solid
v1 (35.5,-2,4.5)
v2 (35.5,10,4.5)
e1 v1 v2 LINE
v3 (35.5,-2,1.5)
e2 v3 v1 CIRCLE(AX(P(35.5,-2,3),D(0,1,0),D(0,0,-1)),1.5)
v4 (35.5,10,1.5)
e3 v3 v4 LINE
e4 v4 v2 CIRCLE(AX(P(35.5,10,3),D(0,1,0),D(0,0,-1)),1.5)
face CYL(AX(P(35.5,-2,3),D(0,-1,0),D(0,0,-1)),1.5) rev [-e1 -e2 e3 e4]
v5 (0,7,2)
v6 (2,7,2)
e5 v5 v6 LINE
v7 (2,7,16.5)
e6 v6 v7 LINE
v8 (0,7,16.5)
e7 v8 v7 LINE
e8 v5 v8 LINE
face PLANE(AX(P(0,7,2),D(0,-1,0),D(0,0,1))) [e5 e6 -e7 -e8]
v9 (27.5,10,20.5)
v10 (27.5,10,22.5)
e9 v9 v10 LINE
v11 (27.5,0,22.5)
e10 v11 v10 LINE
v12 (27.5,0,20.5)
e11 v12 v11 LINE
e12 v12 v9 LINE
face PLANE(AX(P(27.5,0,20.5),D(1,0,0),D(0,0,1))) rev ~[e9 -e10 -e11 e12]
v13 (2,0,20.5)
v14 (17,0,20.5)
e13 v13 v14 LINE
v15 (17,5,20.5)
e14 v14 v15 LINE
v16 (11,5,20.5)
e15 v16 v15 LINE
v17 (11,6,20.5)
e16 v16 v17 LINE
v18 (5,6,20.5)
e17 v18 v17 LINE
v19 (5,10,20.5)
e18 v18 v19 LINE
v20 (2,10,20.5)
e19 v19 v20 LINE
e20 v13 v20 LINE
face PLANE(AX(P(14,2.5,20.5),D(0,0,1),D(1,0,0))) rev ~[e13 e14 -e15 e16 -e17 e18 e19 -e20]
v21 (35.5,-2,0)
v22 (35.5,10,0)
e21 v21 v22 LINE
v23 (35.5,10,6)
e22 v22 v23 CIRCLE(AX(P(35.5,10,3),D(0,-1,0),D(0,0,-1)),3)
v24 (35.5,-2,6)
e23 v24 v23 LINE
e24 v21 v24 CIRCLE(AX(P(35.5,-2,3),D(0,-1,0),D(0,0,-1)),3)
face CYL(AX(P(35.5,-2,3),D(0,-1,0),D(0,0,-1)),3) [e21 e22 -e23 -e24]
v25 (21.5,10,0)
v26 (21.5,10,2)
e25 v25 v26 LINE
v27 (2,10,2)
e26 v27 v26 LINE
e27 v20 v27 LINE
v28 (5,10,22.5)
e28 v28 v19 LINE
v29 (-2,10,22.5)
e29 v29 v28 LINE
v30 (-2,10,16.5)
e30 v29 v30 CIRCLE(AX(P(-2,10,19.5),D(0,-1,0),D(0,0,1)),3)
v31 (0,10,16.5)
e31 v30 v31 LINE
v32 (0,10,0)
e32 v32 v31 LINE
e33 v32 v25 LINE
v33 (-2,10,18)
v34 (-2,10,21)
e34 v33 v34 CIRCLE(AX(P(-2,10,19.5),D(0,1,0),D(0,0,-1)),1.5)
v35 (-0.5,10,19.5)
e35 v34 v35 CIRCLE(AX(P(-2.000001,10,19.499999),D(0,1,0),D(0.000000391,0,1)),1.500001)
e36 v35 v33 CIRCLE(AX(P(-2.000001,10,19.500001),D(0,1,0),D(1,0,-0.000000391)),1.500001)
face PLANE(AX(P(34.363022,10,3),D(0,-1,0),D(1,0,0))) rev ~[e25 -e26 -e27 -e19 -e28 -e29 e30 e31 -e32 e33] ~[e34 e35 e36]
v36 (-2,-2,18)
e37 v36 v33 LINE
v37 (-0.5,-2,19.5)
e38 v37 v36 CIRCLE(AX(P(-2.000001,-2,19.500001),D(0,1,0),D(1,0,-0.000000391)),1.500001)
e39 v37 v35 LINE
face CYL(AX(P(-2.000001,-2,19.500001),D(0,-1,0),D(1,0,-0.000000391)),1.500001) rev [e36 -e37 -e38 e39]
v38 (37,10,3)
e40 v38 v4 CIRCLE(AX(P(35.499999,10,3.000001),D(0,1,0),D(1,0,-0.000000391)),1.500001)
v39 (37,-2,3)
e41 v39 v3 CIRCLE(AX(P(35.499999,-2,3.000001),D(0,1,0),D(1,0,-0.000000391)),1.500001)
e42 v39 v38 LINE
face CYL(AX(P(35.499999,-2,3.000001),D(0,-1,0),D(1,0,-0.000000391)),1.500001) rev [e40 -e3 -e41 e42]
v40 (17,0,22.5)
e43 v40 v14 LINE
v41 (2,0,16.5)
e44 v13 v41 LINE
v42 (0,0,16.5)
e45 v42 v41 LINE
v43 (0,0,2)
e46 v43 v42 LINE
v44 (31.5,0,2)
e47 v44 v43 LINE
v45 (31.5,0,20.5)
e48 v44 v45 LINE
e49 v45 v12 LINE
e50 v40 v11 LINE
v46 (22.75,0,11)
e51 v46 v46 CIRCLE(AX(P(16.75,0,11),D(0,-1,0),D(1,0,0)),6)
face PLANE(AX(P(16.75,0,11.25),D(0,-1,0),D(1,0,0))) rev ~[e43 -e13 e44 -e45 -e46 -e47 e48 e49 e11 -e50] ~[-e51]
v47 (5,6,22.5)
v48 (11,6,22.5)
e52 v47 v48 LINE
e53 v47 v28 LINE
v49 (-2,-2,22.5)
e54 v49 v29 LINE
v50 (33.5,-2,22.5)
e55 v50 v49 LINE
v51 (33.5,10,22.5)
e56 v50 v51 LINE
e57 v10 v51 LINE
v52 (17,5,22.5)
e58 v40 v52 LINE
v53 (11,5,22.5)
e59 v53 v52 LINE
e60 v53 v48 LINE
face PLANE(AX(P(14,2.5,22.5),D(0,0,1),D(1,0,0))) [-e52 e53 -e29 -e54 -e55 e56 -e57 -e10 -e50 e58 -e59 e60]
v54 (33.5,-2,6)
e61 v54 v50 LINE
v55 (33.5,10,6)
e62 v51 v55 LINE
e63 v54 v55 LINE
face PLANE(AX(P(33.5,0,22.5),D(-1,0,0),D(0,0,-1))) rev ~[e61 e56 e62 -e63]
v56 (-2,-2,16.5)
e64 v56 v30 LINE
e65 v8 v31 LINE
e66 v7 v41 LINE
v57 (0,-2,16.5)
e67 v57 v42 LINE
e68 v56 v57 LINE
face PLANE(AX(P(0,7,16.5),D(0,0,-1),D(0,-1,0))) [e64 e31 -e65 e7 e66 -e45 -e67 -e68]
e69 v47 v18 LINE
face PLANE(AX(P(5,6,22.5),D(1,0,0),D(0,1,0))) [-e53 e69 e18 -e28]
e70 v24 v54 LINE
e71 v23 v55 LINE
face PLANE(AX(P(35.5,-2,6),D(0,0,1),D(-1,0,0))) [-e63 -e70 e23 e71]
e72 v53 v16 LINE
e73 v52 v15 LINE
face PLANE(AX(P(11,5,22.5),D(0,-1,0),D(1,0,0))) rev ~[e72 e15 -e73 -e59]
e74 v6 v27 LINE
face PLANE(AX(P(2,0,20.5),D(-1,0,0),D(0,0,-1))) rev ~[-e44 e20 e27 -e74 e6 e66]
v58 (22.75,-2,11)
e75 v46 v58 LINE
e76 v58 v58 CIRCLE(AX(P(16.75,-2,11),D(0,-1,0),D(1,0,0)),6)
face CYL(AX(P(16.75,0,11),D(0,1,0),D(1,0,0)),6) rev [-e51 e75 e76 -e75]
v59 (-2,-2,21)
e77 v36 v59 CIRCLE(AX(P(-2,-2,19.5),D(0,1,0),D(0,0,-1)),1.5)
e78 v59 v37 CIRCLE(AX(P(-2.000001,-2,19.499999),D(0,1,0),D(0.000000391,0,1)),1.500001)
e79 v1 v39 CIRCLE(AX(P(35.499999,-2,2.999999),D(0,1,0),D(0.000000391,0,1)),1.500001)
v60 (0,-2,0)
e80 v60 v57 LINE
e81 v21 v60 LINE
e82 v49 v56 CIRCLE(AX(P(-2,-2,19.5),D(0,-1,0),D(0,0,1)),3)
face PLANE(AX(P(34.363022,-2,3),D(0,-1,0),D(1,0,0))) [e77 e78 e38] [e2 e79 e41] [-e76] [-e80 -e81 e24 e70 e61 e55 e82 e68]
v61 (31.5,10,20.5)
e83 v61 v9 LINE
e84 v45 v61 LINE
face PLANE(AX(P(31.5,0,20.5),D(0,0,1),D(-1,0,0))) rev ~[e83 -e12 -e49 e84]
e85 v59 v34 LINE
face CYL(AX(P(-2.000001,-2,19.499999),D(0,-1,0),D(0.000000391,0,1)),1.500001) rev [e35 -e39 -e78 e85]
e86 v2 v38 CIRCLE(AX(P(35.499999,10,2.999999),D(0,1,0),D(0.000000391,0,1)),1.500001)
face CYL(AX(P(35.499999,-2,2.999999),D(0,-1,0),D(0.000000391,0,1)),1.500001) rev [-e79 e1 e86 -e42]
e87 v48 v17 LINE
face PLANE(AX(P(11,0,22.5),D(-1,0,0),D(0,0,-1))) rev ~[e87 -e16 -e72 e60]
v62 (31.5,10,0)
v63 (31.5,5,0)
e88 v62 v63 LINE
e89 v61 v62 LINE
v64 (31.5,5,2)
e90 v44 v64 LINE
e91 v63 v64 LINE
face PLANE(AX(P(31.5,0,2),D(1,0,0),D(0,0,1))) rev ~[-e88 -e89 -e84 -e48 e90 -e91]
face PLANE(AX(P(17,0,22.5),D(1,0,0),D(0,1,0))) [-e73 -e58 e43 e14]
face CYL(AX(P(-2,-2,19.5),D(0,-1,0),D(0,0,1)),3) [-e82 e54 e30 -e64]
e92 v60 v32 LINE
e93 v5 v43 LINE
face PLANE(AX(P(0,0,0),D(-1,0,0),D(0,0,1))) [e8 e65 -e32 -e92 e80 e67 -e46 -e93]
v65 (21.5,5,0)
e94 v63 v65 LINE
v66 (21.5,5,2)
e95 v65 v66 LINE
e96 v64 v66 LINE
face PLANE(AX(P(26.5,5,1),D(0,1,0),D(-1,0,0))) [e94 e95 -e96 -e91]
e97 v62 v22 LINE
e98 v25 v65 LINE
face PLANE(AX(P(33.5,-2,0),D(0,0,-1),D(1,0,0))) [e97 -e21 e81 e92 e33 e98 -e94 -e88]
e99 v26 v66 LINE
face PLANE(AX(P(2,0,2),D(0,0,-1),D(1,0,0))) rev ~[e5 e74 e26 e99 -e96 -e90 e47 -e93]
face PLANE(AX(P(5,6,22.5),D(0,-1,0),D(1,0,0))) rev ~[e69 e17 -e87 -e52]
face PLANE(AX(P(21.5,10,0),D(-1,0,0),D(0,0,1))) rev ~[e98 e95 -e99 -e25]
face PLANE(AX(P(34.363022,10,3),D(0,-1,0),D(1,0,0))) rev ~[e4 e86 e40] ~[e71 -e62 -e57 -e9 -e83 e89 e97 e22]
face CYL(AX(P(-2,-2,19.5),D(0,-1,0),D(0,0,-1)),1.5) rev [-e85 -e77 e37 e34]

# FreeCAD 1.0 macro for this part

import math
import FreeCAD as App
import Part
import Sketcher
from FreeCAD import Vector
Q = App.Units.Quantity

doc = App.newDocument("Part")
body = doc.addObject("PartDesign::Body", "Body")

# Sketch on XZ plane
sketch1 = body.newObject("Sketcher::SketchObject", "Sketch")
sketch1.AttachmentSupport = (doc.getObject("XZ_Plane"), [""])
sketch1.MapMode = "FlatFace"
sketch1.addGeometry(Part.LineSegment(Vector(0, 22.5, 0), Vector(0, 0, 0)), False)
sketch1.addGeometry(Part.LineSegment(Vector(0, 0, 0), Vector(33.5, 0, 0)), False)
sketch1.addGeometry(Part.LineSegment(Vector(33.5, 0, 0), Vector(33.5, 22.5, 0)), False)
sketch1.addGeometry(Part.LineSegment(Vector(33.5, 22.5, 0), Vector(0, 22.5, 0)), False)
sketch1.addGeometry(Part.Circle(Vector(16.75, 11, 0), Vector(0, 0, 1), 6), False)
sketch1.addConstraint(Sketcher.Constraint("Coincident", 0, 2, 1, 1))
sketch1.addConstraint(Sketcher.Constraint("Coincident", 1, 2, 2, 1))
sketch1.addConstraint(Sketcher.Constraint("Coincident", 2, 2, 3, 1))
sketch1.addConstraint(Sketcher.Constraint("Coincident", 3, 2, 0, 1))
sketch1.addConstraint(Sketcher.Constraint("Vertical", 0))
sketch1.addConstraint(Sketcher.Constraint("Horizontal", 1))
sketch1.addConstraint(Sketcher.Constraint("Vertical", 2))
sketch1.addConstraint(Sketcher.Constraint("Horizontal", 3))
sketch1.addConstraint(Sketcher.Constraint("Coincident", 0, 2, -1, 1))
sketch1.addConstraint(Sketcher.Constraint("Diameter", 4, Q("12 mm")))
sketch1.addConstraint(Sketcher.Constraint("DistanceX", 1, 1, 1, 2, Q("33.5 mm")))
sketch1.addConstraint(Sketcher.Constraint("DistanceY", 0, 2, 0, 1, Q("22.5 mm")))
sketch1.addConstraint(Sketcher.Constraint("DistanceY", -1, 1, 4, 3, Q("11 mm")))
sketch1.addConstraint(Sketcher.Constraint("DistanceX", -1, 1, 4, 3, Q("16.75 mm")))
pad1 = body.newObject("PartDesign::Pad", "Pad")
pad1.Profile = sketch1
pad1.Length = 2

# Sketch on XZ plane
sketch2 = body.newObject("Sketcher::SketchObject", "Sketch001")
sketch2.AttachmentSupport = (doc.getObject("XZ_Plane"), [""])
sketch2.MapMode = "FlatFace"
sketch2.addGeometry(Part.LineSegment(Vector(27.5, 22.5, 0), Vector(33.5, 22.5, 0)), False)
sketch2.addGeometry(Part.LineSegment(Vector(33.5, 22.5, 0), Vector(33.5, 0, 0)), False)
sketch2.addGeometry(Part.LineSegment(Vector(33.5, 0, 0), Vector(0, 0, 0)), False)
sketch2.addGeometry(Part.LineSegment(Vector(0, 0, 0), Vector(0, 22.5, 0)), False)
sketch2.addGeometry(Part.LineSegment(Vector(0, 22.5, 0), Vector(11, 22.5, 0)), False)
sketch2.addGeometry(Part.LineSegment(Vector(11, 22.5, 0), Vector(11, 20.5, 0)), False)
sketch2.addGeometry(Part.LineSegment(Vector(11, 20.5, 0), Vector(2, 20.5, 0)), False)
sketch2.addGeometry(Part.LineSegment(Vector(2, 20.5, 0), Vector(2, 2, 0)), False)
sketch2.addGeometry(Part.LineSegment(Vector(2, 2, 0), Vector(31.5, 2, 0)), False)
sketch2.addGeometry(Part.LineSegment(Vector(31.5, 2, 0), Vector(31.5, 20.5, 0)), False)
sketch2.addGeometry(Part.LineSegment(Vector(31.5, 20.5, 0), Vector(27.5, 20.5, 0)), False)
sketch2.addGeometry(Part.LineSegment(Vector(27.5, 20.5, 0), Vector(27.5, 22.5, 0)), False)
sketch2.addConstraint(Sketcher.Constraint("Coincident", 0, 2, 1, 1))
sketch2.addConstraint(Sketcher.Constraint("Coincident", 1, 2, 2, 1))
sketch2.addConstraint(Sketcher.Constraint("Coincident", 2, 2, 3, 1))
sketch2.addConstraint(Sketcher.Constraint("Coincident", 3, 2, 4, 1))
sketch2.addConstraint(Sketcher.Constraint("Coincident", 4, 2, 5, 1))
sketch2.addConstraint(Sketcher.Constraint("Coincident", 5, 2, 6, 1))
sketch2.addConstraint(Sketcher.Constraint("Coincident", 6, 2, 7, 1))
sketch2.addConstraint(Sketcher.Constraint("Coincident", 7, 2, 8, 1))
sketch2.addConstraint(Sketcher.Constraint("Coincident", 8, 2, 9, 1))
sketch2.addConstraint(Sketcher.Constraint("Coincident", 9, 2, 10, 1))
sketch2.addConstraint(Sketcher.Constraint("Coincident", 10, 2, 11, 1))
sketch2.addConstraint(Sketcher.Constraint("Coincident", 11, 2, 0, 1))
sketch2.addConstraint(Sketcher.Constraint("Horizontal", 0))
sketch2.addConstraint(Sketcher.Constraint("Vertical", 1))
sketch2.addConstraint(Sketcher.Constraint("Horizontal", 2))
sketch2.addConstraint(Sketcher.Constraint("Vertical", 3))
sketch2.addConstraint(Sketcher.Constraint("Horizontal", 4))
sketch2.addConstraint(Sketcher.Constraint("Vertical", 5))
sketch2.addConstraint(Sketcher.Constraint("Horizontal", 6))
sketch2.addConstraint(Sketcher.Constraint("Vertical", 7))
sketch2.addConstraint(Sketcher.Constraint("Horizontal", 8))
sketch2.addConstraint(Sketcher.Constraint("Vertical", 9))
sketch2.addConstraint(Sketcher.Constraint("Horizontal", 10))
sketch2.addConstraint(Sketcher.Constraint("Vertical", 11))
sketch2.addConstraint(Sketcher.Constraint("Coincident", 2, 2, -1, 1))
sketch2.addConstraint(Sketcher.Constraint("Horizontal", 0, 2, 3, 2))
sketch2.addConstraint(Sketcher.Constraint("Horizontal", 6, 2, 9, 2))
sketch2.addConstraint(Sketcher.Constraint("DistanceX", 0, 1, 0, 2, Q("6 mm")))
sketch2.addConstraint(Sketcher.Constraint("DistanceX", 4, 1, 4, 2, Q("11 mm")))
sketch2.addConstraint(Sketcher.Constraint("DistanceX", 6, 2, 6, 1, Q("9 mm")))
sketch2.addConstraint(Sketcher.Constraint("DistanceX", 10, 2, 10, 1, Q("4 mm")))
sketch2.addConstraint(Sketcher.Constraint("DistanceY", 5, 2, 5, 1, Q("2 mm")))
sketch2.addConstraint(Sketcher.Constraint("DistanceX", 2, 2, 2, 1, Q("33.5 mm")))
sketch2.addConstraint(Sketcher.Constraint("DistanceY", 1, 2, 1, 1, Q("22.5 mm")))
sketch2.addConstraint(Sketcher.Constraint("DistanceY", 7, 2, 7, 1, Q("18.5 mm")))
pad2 = body.newObject("PartDesign::Pad", "Pad001")
pad2.Profile = sketch2
pad2.Length = 10
pad2.Reversed = True

# Sketch on XY plane
sketch3 = body.newObject("Sketcher::SketchObject", "Sketch002")
sketch3.AttachmentSupport = (doc.getObject("XY_Plane"), [""])
sketch3.MapMode = "FlatFace"
sketch3.AttachmentOffset = App.Placement(Vector(0, 0, 22.5), App.Rotation())
sketch3.addGeometry(Part.LineSegment(Vector(5, 10, 0), Vector(5, 6, 0)), False)
sketch3.addGeometry(Part.LineSegment(Vector(5, 6, 0), Vector(11, 6, 0)), False)
sketch3.addGeometry(Part.LineSegment(Vector(11, 6, 0), Vector(11, 10, 0)), False)
sketch3.addGeometry(Part.LineSegment(Vector(11, 10, 0), Vector(5, 10, 0)), False)
sketch3.addConstraint(Sketcher.Constraint("Coincident", 0, 2, 1, 1))
sketch3.addConstraint(Sketcher.Constraint("Coincident", 1, 2, 2, 1))
sketch3.addConstraint(Sketcher.Constraint("Coincident", 2, 2, 3, 1))
sketch3.addConstraint(Sketcher.Constraint("Coincident", 3, 2, 0, 1))
sketch3.addConstraint(Sketcher.Constraint("Vertical", 0))
sketch3.addConstraint(Sketcher.Constraint("Horizontal", 1))
sketch3.addConstraint(Sketcher.Constraint("Vertical", 2))
sketch3.addConstraint(Sketcher.Constraint("Horizontal", 3))
sketch3.addConstraint(Sketcher.Constraint("DistanceX", 1, 1, 1, 2, Q("6 mm")))
sketch3.addConstraint(Sketcher.Constraint("DistanceY", 0, 2, 0, 1, Q("4 mm")))
sketch3.addConstraint(Sketcher.Constraint("DistanceX", -1, 1, 0, 2, Q("5 mm")))
sketch3.addConstraint(Sketcher.Constraint("DistanceY", -1, 1, 0, 2, Q("6 mm")))
pocket1 = body.newObject("PartDesign::Pocket", "Pocket")
pocket1.Profile = sketch3
pocket1.Length = 2

# Sketch on XZ plane
sketch4 = body.newObject("Sketcher::SketchObject", "Sketch003")
sketch4.AttachmentSupport = (doc.getObject("XZ_Plane"), [""])
sketch4.MapMode = "FlatFace"
sketch4.AttachmentOffset = App.Placement(Vector(0, 0, 2), App.Rotation())
sketch4.addGeometry(Part.LineSegment(Vector(33.5, 6, 0), Vector(33.5, 0, 0)), False)
sketch4.addGeometry(Part.LineSegment(Vector(33.5, 0, 0), Vector(35.5, 0, 0)), False)
sketch4.addGeometry(Part.ArcOfCircle(Part.Circle(Vector(35.5, 3, 0), Vector(0, 0, 1), 3), math.radians(-90), math.radians(90)), False)
sketch4.addGeometry(Part.LineSegment(Vector(35.5, 6, 0), Vector(33.5, 6, 0)), False)
sketch4.addGeometry(Part.ArcOfCircle(Part.Circle(Vector(35.5, 3, 0), Vector(0, 0, 1), 1.5), math.radians(90), math.radians(270)), False)
sketch4.addGeometry(Part.ArcOfCircle(Part.Circle(Vector(35.499999, 2.999999, 0), Vector(0, 0, 1), 1.500001), math.radians(0.000022), math.radians(89.999978)), False)
sketch4.addGeometry(Part.ArcOfCircle(Part.Circle(Vector(35.499999, 3.000001, 0), Vector(0, 0, 1), 1.500001), math.radians(-89.999978), math.radians(-0.000022)), False)
sketch4.addGeometry(Part.LineSegment(Vector(0, 16.5, 0), Vector(0, 22.5, 0)), False)
sketch4.addGeometry(Part.LineSegment(Vector(0, 22.5, 0), Vector(-2, 22.5, 0)), False)
sketch4.addGeometry(Part.ArcOfCircle(Part.Circle(Vector(-2, 19.5, 0), Vector(0, 0, 1), 3), math.radians(90), math.radians(270)), False)
sketch4.addGeometry(Part.LineSegment(Vector(-2, 16.5, 0), Vector(0, 16.5, 0)), False)
sketch4.addGeometry(Part.ArcOfCircle(Part.Circle(Vector(-2.000001, 19.499999, 0), Vector(0, 0, 1), 1.500001), math.radians(0.000022), math.radians(89.999978)), False)
sketch4.addGeometry(Part.ArcOfCircle(Part.Circle(Vector(-2.000001, 19.500001, 0), Vector(0, 0, 1), 1.500001), math.radians(-89.999978), math.radians(-0.000022)), False)
sketch4.addGeometry(Part.ArcOfCircle(Part.Circle(Vector(-2, 19.5, 0), Vector(0, 0, 1), 1.5), math.radians(90), math.radians(270)), False)
sketch4.addConstraint(Sketcher.Constraint("Coincident", 0, 2, 1, 1))
sketch4.addConstraint(Sketcher.Constraint("Tangent", 1, 2, 2, 1))
sketch4.addConstraint(Sketcher.Constraint("Tangent", 2, 2, 3, 1))
sketch4.addConstraint(Sketcher.Constraint("Coincident", 3, 2, 0, 1))
sketch4.addConstraint(Sketcher.Constraint("Tangent", 4, 1, 5, 2))
sketch4.addConstraint(Sketcher.Constraint("Tangent", 5, 1, 6, 2))
sketch4.addConstraint(Sketcher.Constraint("Tangent", 6, 1, 4, 2))
sketch4.addConstraint(Sketcher.Constraint("Coincident", 7, 2, 8, 1))
sketch4.addConstraint(Sketcher.Constraint("Tangent", 8, 2, 9, 1))
sketch4.addConstraint(Sketcher.Constraint("Tangent", 9, 2, 10, 1))
sketch4.addConstraint(Sketcher.Constraint("Coincident", 10, 2, 7, 1))
sketch4.addConstraint(Sketcher.Constraint("Tangent", 11, 1, 12, 2))
sketch4.addConstraint(Sketcher.Constraint("Tangent", 12, 1, 13, 2))
sketch4.addConstraint(Sketcher.Constraint("Tangent", 13, 1, 11, 2))
sketch4.addConstraint(Sketcher.Constraint("Vertical", 0))
sketch4.addConstraint(Sketcher.Constraint("Horizontal", 1))
sketch4.addConstraint(Sketcher.Constraint("Horizontal", 3))
sketch4.addConstraint(Sketcher.Constraint("Vertical", 7))
sketch4.addConstraint(Sketcher.Constraint("Horizontal", 8))
sketch4.addConstraint(Sketcher.Constraint("Horizontal", 10))
sketch4.addConstraint(Sketcher.Constraint("Coincident", 4, 3, 2, 3))
sketch4.addConstraint(Sketcher.Constraint("Coincident", 11, 3, 9, 3))
sketch4.addConstraint(Sketcher.Constraint("Equal", 2, 9))
sketch4.addConstraint(Sketcher.Constraint("Equal", 6, 11))
sketch4.addConstraint(Sketcher.Constraint("PointOnObject", 0, 2, -1))
sketch4.addConstraint(Sketcher.Constraint("PointOnObject", 7, 2, -2))
sketch4.addConstraint(Sketcher.Constraint("Horizontal", 6, 3, 5, 1))
sketch4.addConstraint(Sketcher.Constraint("Horizontal", 13, 3, 11, 1))
sketch4.addConstraint(Sketcher.Constraint("Vertical", 2, 2, 4, 1))
sketch4.addConstraint(Sketcher.Constraint("Vertical", 4, 1, 6, 1))
sketch4.addConstraint(Sketcher.Constraint("Vertical", 9, 2, 12, 1))
sketch4.addConstraint(Sketcher.Constraint("Vertical", 12, 1, 13, 1))
sketch4.addConstraint(Sketcher.Constraint("Equal", 3, 8))
sketch4.addConstraint(Sketcher.Constraint("Radius", 2, Q("3 mm")))
sketch4.addConstraint(Sketcher.Constraint("Radius", 4, Q("1.5 mm")))
sketch4.addConstraint(Sketcher.Constraint("DistanceX", 1, 1, 1, 2, Q("2 mm")))
sketch4.addConstraint(Sketcher.Constraint("DistanceX", -1, 1, 5, 1, Q("37 mm")))
sketch4.addConstraint(Sketcher.Constraint("DistanceY", -1, 1, 12, 1, Q("18 mm")))
pad3 = body.newObject("PartDesign::Pad", "Pad002")
pad3.Profile = sketch4
pad3.Length = 12
pad3.Reversed = True

# Sketch on XY plane
sketch5 = body.newObject("Sketcher::SketchObject", "Sketch004")
sketch5.AttachmentSupport = (doc.getObject("XY_Plane"), [""])
sketch5.MapMode = "FlatFace"
sketch5.AttachmentOffset = App.Placement(Vector(0, 0, 22.5), App.Rotation())
sketch5.addGeometry(Part.LineSegment(Vector(11, 5, 0), Vector(11, 0, 0)), False)
sketch5.addGeometry(Part.LineSegment(Vector(11, 0, 0), Vector(17, 0, 0)), False)
sketch5.addGeometry(Part.LineSegment(Vector(17, 0, 0), Vector(17, 5, 0)), False)
sketch5.addGeometry(Part.LineSegment(Vector(17, 5, 0), Vector(11, 5, 0)), False)
sketch5.addConstraint(Sketcher.Constraint("Coincident", 0, 2, 1, 1))
sketch5.addConstraint(Sketcher.Constraint("Coincident", 1, 2, 2, 1))
sketch5.addConstraint(Sketcher.Constraint("Coincident", 2, 2, 3, 1))
sketch5.addConstraint(Sketcher.Constraint("Coincident", 3, 2, 0, 1))
sketch5.addConstraint(Sketcher.Constraint("Vertical", 0))
sketch5.addConstraint(Sketcher.Constraint("Horizontal", 1))
sketch5.addConstraint(Sketcher.Constraint("Vertical", 2))
sketch5.addConstraint(Sketcher.Constraint("Horizontal", 3))
sketch5.addConstraint(Sketcher.Constraint("PointOnObject", 0, 2, -1))
sketch5.addConstraint(Sketcher.Constraint("DistanceX", 1, 1, 1, 2, Q("6 mm")))
sketch5.addConstraint(Sketcher.Constraint("DistanceY", 0, 2, 0, 1, Q("5 mm")))
sketch5.addConstraint(Sketcher.Constraint("DistanceX", -1, 1, 0, 2, Q("11 mm")))
pad4 = body.newObject("PartDesign::Pad", "Pad003")
pad4.Profile = sketch5
pad4.Length = 2
pad4.Reversed = True

# Sketch on XZ plane
sketch6 = body.newObject("Sketcher::SketchObject", "Sketch005")
sketch6.AttachmentSupport = (doc.getObject("XZ_Plane"), [""])
sketch6.MapMode = "FlatFace"
sketch6.AttachmentOffset = App.Placement(Vector(0, 0, -10), App.Rotation())
sketch6.addGeometry(Part.LineSegment(Vector(31.5, 2, 0), Vector(31.5, 0, 0)), False)
sketch6.addGeometry(Part.LineSegment(Vector(31.5, 0, 0), Vector(21.5, 0, 0)), False)
sketch6.addGeometry(Part.LineSegment(Vector(21.5, 0, 0), Vector(21.5, 2, 0)), False)
sketch6.addGeometry(Part.LineSegment(Vector(21.5, 2, 0), Vector(31.5, 2, 0)), False)
sketch6.addConstraint(Sketcher.Constraint("Coincident", 0, 2, 1, 1))
sketch6.addConstraint(Sketcher.Constraint("Coincident", 1, 2, 2, 1))
sketch6.addConstraint(Sketcher.Constraint("Coincident", 2, 2, 3, 1))
sketch6.addConstraint(Sketcher.Constraint("Coincident", 3, 2, 0, 1))
sketch6.addConstraint(Sketcher.Constraint("Vertical", 0))
sketch6.addConstraint(Sketcher.Constraint("Horizontal", 1))
sketch6.addConstraint(Sketcher.Constraint("Vertical", 2))
sketch6.addConstraint(Sketcher.Constraint("Horizontal", 3))
sketch6.addConstraint(Sketcher.Constraint("PointOnObject", 0, 2, -1))
sketch6.addConstraint(Sketcher.Constraint("DistanceX", 1, 2, 1, 1, Q("10 mm")))
sketch6.addConstraint(Sketcher.Constraint("DistanceY", 0, 2, 0, 1, Q("2 mm")))
sketch6.addConstraint(Sketcher.Constraint("DistanceX", -1, 1, 0, 2, Q("31.5 mm")))
pocket2 = body.newObject("PartDesign::Pocket", "Pocket001")
pocket2.Profile = sketch6
pocket2.Length = 5
pocket2.Reversed = True

# Sketch on YZ plane
sketch7 = body.newObject("Sketcher::SketchObject", "Sketch006")
sketch7.AttachmentSupport = (doc.getObject("YZ_Plane"), [""])
sketch7.MapMode = "FlatFace"
sketch7.addGeometry(Part.LineSegment(Vector(7, 16.5, 0), Vector(7, 2, 0)), False)
sketch7.addGeometry(Part.LineSegment(Vector(7, 2, 0), Vector(0, 2, 0)), False)
sketch7.addGeometry(Part.LineSegment(Vector(0, 2, 0), Vector(0, 16.5, 0)), False)
sketch7.addGeometry(Part.LineSegment(Vector(0, 16.5, 0), Vector(7, 16.5, 0)), False)
sketch7.addConstraint(Sketcher.Constraint("Coincident", 0, 2, 1, 1))
sketch7.addConstraint(Sketcher.Constraint("Coincident", 1, 2, 2, 1))
sketch7.addConstraint(Sketcher.Constraint("Coincident", 2, 2, 3, 1))
sketch7.addConstraint(Sketcher.Constraint("Coincident", 3, 2, 0, 1))
sketch7.addConstraint(Sketcher.Constraint("Vertical", 0))
sketch7.addConstraint(Sketcher.Constraint("Horizontal", 1))
sketch7.addConstraint(Sketcher.Constraint("Vertical", 2))
sketch7.addConstraint(Sketcher.Constraint("Horizontal", 3))
sketch7.addConstraint(Sketcher.Constraint("PointOnObject", 1, 2, -2))
sketch7.addConstraint(Sketcher.Constraint("DistanceX", 1, 2, 1, 1, Q("7 mm")))
sketch7.addConstraint(Sketcher.Constraint("DistanceY", 0, 2, 0, 1, Q("14.5 mm")))
sketch7.addConstraint(Sketcher.Constraint("DistanceY", -1, 1, 0, 2, Q("2 mm")))
pocket3 = body.newObject("PartDesign::Pocket", "Pocket002")
pocket3.Profile = sketch7
pocket3.Length = 2
pocket3.Reversed = True

doc.recompute()
